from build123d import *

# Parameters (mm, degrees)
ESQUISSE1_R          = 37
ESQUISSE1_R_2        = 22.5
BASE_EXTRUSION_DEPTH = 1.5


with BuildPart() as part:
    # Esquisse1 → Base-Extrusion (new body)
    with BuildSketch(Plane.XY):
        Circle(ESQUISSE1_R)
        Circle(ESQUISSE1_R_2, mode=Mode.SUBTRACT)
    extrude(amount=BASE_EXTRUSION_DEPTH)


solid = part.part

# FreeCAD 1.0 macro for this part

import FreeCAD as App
import Part
import Sketcher
from FreeCAD import Vector

doc = App.newDocument("Part")
body = doc.addObject("PartDesign::Body", "Body")

# Sketch on XY plane
sketch1 = body.newObject("Sketcher::SketchObject", "Sketch")
sketch1.AttachmentSupport = (doc.getObject("XY_Plane"), [""])
sketch1.MapMode = "FlatFace"
sketch1.addGeometry([
    Part.Circle(Vector(0, 0, 0), Vector(0, 0, 1), 37),
    Part.Circle(Vector(0, 0, 0), Vector(0, 0, 1), 22),
], False)
sketch1.addConstraint([
    Sketcher.Constraint("Coincident", 0, 3, -1, 1),
    Sketcher.Constraint("Coincident", 1, 3, -1, 1),
    Sketcher.Constraint("Diameter", 0, 74.0),
    Sketcher.Constraint("Diameter", 1, 45.0),
])
pad1 = body.newObject("PartDesign::Pad", "Pad")
pad1.Profile = sketch1
pad1.Length = 1.5

doc.recompute()
